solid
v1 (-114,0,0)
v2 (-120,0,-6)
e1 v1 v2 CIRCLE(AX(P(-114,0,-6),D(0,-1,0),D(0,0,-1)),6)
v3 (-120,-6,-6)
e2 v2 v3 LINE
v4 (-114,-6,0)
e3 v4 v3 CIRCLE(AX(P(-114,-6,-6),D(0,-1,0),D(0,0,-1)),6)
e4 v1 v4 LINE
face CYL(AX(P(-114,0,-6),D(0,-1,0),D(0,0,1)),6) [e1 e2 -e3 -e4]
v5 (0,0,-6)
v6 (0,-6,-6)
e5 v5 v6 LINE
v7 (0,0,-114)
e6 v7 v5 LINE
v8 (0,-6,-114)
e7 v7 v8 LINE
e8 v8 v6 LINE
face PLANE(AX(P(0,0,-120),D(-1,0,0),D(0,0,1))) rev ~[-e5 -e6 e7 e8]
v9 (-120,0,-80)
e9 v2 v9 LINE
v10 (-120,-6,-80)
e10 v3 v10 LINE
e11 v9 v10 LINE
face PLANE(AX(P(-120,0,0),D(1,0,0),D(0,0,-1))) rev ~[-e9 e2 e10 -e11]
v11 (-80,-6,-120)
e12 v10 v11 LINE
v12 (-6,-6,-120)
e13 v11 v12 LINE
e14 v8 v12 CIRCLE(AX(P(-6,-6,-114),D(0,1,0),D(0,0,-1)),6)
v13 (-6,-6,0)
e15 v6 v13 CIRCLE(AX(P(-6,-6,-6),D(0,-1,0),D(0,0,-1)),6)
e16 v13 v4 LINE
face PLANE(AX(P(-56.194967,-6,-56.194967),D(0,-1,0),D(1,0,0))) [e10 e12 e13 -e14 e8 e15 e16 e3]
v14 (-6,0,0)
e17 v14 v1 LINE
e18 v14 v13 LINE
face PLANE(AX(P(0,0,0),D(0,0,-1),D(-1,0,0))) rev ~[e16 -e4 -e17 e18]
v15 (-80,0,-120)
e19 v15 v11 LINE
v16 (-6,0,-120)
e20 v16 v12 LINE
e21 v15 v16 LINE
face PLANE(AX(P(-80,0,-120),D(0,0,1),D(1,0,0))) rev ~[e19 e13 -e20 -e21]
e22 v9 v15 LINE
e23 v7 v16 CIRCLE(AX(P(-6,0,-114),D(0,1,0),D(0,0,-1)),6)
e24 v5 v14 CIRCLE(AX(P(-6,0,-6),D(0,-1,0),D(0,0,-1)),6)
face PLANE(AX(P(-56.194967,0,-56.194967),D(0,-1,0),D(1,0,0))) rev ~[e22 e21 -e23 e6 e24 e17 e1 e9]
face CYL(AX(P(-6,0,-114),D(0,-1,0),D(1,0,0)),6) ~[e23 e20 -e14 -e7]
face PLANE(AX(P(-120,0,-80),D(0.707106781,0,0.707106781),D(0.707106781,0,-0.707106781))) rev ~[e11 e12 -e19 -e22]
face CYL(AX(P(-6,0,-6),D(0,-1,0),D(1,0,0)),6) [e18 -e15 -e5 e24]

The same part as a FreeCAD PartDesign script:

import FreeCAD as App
import Part
import Sketcher
from FreeCAD import Vector


def edges_at(feature, points):
    """Names of the edges that pass closest to the given points."""
    edges = feature.Shape.Edges
    near = lambda p: min(range(len(edges)), key=lambda i: edges[i].distToShape(Part.Vertex(*p))[0])
    return sorted({f"Edge{near(p) + 1}" for p in points})

doc = App.newDocument("Part")
body = doc.addObject("PartDesign::Body", "Body")

# Sketch on XZ plane
sketch1 = body.newObject("Sketcher::SketchObject", "Sketch")
sketch1.AttachmentSupport = (doc.getObject("XZ_Plane"), [""])
sketch1.MapMode = "FlatFace"
sketch1.addGeometry(Part.LineSegment(Vector(0, -120, 0), Vector(0, 0, 0)), False)
sketch1.addGeometry(Part.LineSegment(Vector(0, 0, 0), Vector(-120, 0, 0)), False)
sketch1.addGeometry(Part.LineSegment(Vector(-120, 0, 0), Vector(-120, -80, 0)), False)
sketch1.addGeometry(Part.LineSegment(Vector(-120, -80, 0), Vector(-80, -120, 0)), False)
sketch1.addGeometry(Part.LineSegment(Vector(-80, -120, 0), Vector(0, -120, 0)), False)
sketch1.addConstraint(Sketcher.Constraint("Coincident", 0, 2, 1, 1))
sketch1.addConstraint(Sketcher.Constraint("Coincident", 1, 2, 2, 1))
sketch1.addConstraint(Sketcher.Constraint("Coincident", 2, 2, 3, 1))
sketch1.addConstraint(Sketcher.Constraint("Coincident", 3, 2, 4, 1))
sketch1.addConstraint(Sketcher.Constraint("Coincident", 4, 2, 0, 1))
sketch1.addConstraint(Sketcher.Constraint("Vertical", 0))
sketch1.addConstraint(Sketcher.Constraint("Horizontal", 1))
sketch1.addConstraint(Sketcher.Constraint("Vertical", 2))
sketch1.addConstraint(Sketcher.Constraint("Horizontal", 4))
sketch1.addConstraint(Sketcher.Constraint("Coincident", 0, 2, -1, 1))
sketch1.addConstraint(Sketcher.Constraint("Equal", 1, 0))
sketch1.addConstraint(Sketcher.Constraint("Equal", 4, 2))
sketch1.addConstraint(Sketcher.Constraint("DistanceX", 1, 2, 1, 1, 120.0))
sketch1.addConstraint(Sketcher.Constraint("DistanceX", 4, 1, 4, 2, 80.0))
pad1 = body.newObject("PartDesign::Pad", "Pad")
pad1.Profile = sketch1
pad1.Length = 6
doc.recompute()

fillet = body.newObject("PartDesign::Fillet", "Fillet")
fillet.Base = (pad1, edges_at(pad1, [(0, -3, 0)]))
fillet.Radius = 6
doc.recompute()

fillet2 = body.newObject("PartDesign::Fillet", "Fillet001")
fillet2.Base = (fillet, edges_at(fillet, [(-120, -3, 0), (0, -3, -120)]))
fillet2.Radius = 6

doc.recompute()
